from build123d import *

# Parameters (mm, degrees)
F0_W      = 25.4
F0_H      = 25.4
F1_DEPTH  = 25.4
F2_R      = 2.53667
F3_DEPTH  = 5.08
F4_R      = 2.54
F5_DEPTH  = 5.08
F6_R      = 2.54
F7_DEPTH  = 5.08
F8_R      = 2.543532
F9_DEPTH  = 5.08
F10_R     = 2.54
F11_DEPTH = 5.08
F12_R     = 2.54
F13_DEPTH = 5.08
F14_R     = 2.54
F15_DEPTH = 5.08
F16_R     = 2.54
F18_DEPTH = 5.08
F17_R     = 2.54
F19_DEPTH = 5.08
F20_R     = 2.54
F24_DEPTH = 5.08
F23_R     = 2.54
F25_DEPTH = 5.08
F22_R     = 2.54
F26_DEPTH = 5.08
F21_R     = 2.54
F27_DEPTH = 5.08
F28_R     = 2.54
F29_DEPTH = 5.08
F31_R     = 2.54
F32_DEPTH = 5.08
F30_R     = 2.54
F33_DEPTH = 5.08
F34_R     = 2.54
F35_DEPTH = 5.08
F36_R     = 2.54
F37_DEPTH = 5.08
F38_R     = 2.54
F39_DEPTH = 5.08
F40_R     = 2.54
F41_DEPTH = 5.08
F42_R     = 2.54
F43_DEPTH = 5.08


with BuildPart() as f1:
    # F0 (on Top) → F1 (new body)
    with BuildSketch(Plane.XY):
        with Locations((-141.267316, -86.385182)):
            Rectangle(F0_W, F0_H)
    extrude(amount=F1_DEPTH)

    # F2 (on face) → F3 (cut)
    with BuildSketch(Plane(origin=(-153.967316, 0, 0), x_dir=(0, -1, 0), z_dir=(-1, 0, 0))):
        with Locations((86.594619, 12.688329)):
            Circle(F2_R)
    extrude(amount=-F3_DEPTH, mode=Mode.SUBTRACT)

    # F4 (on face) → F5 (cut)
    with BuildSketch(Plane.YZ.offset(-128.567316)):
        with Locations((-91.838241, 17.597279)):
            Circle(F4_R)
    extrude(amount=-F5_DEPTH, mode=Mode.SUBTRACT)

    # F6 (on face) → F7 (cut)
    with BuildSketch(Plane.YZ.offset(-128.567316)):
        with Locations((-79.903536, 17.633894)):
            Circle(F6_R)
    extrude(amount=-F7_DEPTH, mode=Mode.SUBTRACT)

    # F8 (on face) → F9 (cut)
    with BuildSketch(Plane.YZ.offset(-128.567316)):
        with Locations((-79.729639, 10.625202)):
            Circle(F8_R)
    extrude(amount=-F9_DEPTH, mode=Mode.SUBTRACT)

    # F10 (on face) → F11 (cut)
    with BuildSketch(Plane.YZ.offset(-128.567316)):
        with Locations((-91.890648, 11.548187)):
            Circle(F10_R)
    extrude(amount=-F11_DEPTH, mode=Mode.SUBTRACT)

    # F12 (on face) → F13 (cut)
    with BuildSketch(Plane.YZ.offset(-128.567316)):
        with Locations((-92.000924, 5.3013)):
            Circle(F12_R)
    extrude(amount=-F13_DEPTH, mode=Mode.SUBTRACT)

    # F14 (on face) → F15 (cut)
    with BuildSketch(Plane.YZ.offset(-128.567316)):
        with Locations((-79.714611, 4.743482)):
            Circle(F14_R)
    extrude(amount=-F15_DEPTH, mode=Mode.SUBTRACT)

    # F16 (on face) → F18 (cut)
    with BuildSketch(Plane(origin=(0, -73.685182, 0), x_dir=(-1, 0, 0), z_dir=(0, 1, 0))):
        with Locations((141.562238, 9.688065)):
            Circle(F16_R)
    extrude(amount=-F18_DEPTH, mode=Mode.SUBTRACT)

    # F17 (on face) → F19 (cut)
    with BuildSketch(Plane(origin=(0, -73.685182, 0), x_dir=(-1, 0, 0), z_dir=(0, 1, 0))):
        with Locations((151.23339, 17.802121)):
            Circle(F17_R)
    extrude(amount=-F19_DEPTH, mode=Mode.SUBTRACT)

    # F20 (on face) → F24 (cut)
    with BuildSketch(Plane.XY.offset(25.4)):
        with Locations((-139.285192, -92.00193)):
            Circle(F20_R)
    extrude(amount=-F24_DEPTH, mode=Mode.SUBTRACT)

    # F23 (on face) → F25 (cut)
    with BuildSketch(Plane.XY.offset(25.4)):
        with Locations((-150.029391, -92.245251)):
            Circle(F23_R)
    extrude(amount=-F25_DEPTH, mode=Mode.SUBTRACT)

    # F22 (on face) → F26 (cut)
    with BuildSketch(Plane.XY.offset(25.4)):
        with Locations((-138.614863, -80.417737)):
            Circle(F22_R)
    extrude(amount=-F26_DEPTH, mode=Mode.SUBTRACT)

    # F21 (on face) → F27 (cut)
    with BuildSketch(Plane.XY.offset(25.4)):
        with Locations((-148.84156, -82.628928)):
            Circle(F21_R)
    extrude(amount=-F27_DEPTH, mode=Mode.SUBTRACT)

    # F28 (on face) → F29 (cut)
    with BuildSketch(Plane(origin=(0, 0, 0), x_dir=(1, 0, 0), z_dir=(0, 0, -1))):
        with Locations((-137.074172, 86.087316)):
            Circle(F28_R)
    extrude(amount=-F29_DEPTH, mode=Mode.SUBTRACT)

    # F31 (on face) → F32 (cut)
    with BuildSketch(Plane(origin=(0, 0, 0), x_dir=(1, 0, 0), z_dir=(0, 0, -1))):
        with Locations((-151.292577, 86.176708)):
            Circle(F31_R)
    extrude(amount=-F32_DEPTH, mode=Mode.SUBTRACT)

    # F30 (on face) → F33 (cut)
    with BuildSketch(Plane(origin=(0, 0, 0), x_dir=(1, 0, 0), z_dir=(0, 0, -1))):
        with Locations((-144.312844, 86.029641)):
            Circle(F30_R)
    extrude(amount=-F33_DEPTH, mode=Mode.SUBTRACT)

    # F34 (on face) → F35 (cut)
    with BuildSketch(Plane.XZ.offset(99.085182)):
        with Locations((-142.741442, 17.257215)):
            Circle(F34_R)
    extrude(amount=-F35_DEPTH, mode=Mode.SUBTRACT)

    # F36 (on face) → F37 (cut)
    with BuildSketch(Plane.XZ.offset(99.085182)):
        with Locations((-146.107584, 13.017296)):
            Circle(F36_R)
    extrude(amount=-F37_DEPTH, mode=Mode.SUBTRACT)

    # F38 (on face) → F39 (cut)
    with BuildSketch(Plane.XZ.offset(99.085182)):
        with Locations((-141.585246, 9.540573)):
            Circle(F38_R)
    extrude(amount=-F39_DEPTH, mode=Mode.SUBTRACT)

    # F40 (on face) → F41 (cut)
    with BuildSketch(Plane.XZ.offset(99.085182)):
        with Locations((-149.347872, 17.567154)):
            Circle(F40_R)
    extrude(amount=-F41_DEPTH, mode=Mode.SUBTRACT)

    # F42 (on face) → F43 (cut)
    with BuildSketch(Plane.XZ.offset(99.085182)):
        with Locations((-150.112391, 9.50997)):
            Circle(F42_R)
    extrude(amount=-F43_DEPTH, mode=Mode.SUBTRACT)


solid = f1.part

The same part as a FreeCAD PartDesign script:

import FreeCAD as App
import Part
import Sketcher

V = App.Vector
Q = App.Units.Quantity


def add_polygon(sketch, points):
    """Adds a closed chain of lines whose ends are joined by coincident constraints."""
    first, n = sketch.GeometryCount, len(points)
    for a, b in zip(points, points[1:] + points[:1]):
        sketch.addGeometry(Part.LineSegment(App.Vector(*a, 0), App.Vector(*b, 0)), False)
    for i in range(n):
        sketch.addConstraint(Sketcher.Constraint("Coincident", first + i, 2, first + (i + 1) % n, 1))

doc = App.newDocument("Part")
body = doc.addObject("PartDesign::Body", "Body")

sketch1 = body.newObject("Sketcher::SketchObject", "Sketch")
sketch1.AttachmentSupport = (doc.getObject("XY_Plane"), [""])
sketch1.MapMode = "FlatFace"
add_polygon(sketch1, [(-153.967316, -73.685182), (-153.967316, -99.085182), (-128.567316, -99.085182), (-128.567316, -73.685182)])
sketch1.addConstraint([
    Sketcher.Constraint("Vertical", 0),
    Sketcher.Constraint("Horizontal", 1),
    Sketcher.Constraint("Vertical", 2),
    Sketcher.Constraint("Horizontal", 3),
    Sketcher.Constraint("Equal", 3, 0),
    Sketcher.Constraint("DistanceX", 1, 1, 1, 2, Q("1 in")),
    Sketcher.Constraint("DistanceY", 2, 2, -1, 1, 73.685182),
    Sketcher.Constraint("DistanceX", 0, 2, -1, 1, 153.967316),
])
pad1 = body.newObject("PartDesign::Pad", "Pad")
pad1.Profile = sketch1
pad1.Length = Q("1 in")

sketch2 = body.newObject("Sketcher::SketchObject", "Sketch001")
sketch2.AttachmentSupport = (doc.getObject("YZ_Plane"), [""])
sketch2.MapMode = "FlatFace"
sketch2.AttachmentOffset = App.Placement(V(0, 0, -153.967316), App.Rotation())
sketch2.addGeometry(Part.Circle(V(-86.594619, 12.688329, 0), V(0, 0, 1), 2.53667), False)
sketch2.addConstraint([
    Sketcher.Constraint("Diameter", 0, 5.07334),
    Sketcher.Constraint("DistanceX", 0, 3, -1, 1, 86.594619),
    Sketcher.Constraint("DistanceY", -1, 1, 0, 3, 12.688329),
])
pocket1 = body.newObject("PartDesign::Pocket", "Pocket")
pocket1.Profile = sketch2
pocket1.Length = Q("0.2 in")
pocket1.Reversed = True

sketch3 = body.newObject("Sketcher::SketchObject", "Sketch002")
sketch3.AttachmentSupport = (doc.getObject("YZ_Plane"), [""])
sketch3.MapMode = "FlatFace"
sketch3.AttachmentOffset = App.Placement(V(0, 0, -128.567316), App.Rotation())
sketch3.addGeometry(Part.Circle(V(-91.838241, 17.597279, 0), V(0, 0, 1), 2.54), False)
sketch3.addConstraint([
    Sketcher.Constraint("Diameter", 0, Q("0.2 in")),
    Sketcher.Constraint("DistanceX", 0, 3, -1, 1, 91.838241),
    Sketcher.Constraint("DistanceY", -1, 1, 0, 3, 17.597279),
])
pocket2 = body.newObject("PartDesign::Pocket", "Pocket001")
pocket2.Profile = sketch3
pocket2.Length = Q("0.2 in")

sketch4 = body.newObject("Sketcher::SketchObject", "Sketch003")
sketch4.AttachmentSupport = (doc.getObject("YZ_Plane"), [""])
sketch4.MapMode = "FlatFace"
sketch4.AttachmentOffset = App.Placement(V(0, 0, -128.567316), App.Rotation())
sketch4.addGeometry(Part.Circle(V(-79.903536, 17.633894, 0), V(0, 0, 1), 2.54), False)
sketch4.addConstraint([
    Sketcher.Constraint("Diameter", 0, Q("0.2 in")),
    Sketcher.Constraint("DistanceX", 0, 3, -1, 1, 79.903536),
    Sketcher.Constraint("DistanceY", -1, 1, 0, 3, 17.633894),
])
pocket3 = body.newObject("PartDesign::Pocket", "Pocket002")
pocket3.Profile = sketch4
pocket3.Length = Q("0.2 in")

sketch5 = body.newObject("Sketcher::SketchObject", "Sketch004")
sketch5.AttachmentSupport = (doc.getObject("YZ_Plane"), [""])
sketch5.MapMode = "FlatFace"
sketch5.AttachmentOffset = App.Placement(V(0, 0, -128.567316), App.Rotation())
sketch5.addGeometry(Part.Circle(V(-79.729639, 10.625202, 0), V(0, 0, 1), 2.543532), False)
sketch5.addConstraint([
    Sketcher.Constraint("Diameter", 0, 5.087064),
    Sketcher.Constraint("DistanceX", 0, 3, -1, 1, 79.729639),
    Sketcher.Constraint("DistanceY", -1, 1, 0, 3, 10.625202),
])
pocket4 = body.newObject("PartDesign::Pocket", "Pocket003")
pocket4.Profile = sketch5
pocket4.Length = Q("0.2 in")

sketch6 = body.newObject("Sketcher::SketchObject", "Sketch005")
sketch6.AttachmentSupport = (doc.getObject("YZ_Plane"), [""])
sketch6.MapMode = "FlatFace"
sketch6.AttachmentOffset = App.Placement(V(0, 0, -128.567316), App.Rotation())
sketch6.addGeometry(Part.Circle(V(-91.890648, 11.548187, 0), V(0, 0, 1), 2.54), False)
sketch6.addConstraint([
    Sketcher.Constraint("Diameter", 0, Q("0.2 in")),
    Sketcher.Constraint("DistanceX", 0, 3, -1, 1, 91.890648),
    Sketcher.Constraint("DistanceY", -1, 1, 0, 3, 11.548187),
])
pocket5 = body.newObject("PartDesign::Pocket", "Pocket004")
pocket5.Profile = sketch6
pocket5.Length = Q("0.2 in")

sketch7 = body.newObject("Sketcher::SketchObject", "Sketch006")
sketch7.AttachmentSupport = (doc.getObject("YZ_Plane"), [""])
sketch7.MapMode = "FlatFace"
sketch7.AttachmentOffset = App.Placement(V(0, 0, -128.567316), App.Rotation())
sketch7.addGeometry(Part.Circle(V(-92.000924, 5.3013, 0), V(0, 0, 1), 2.54), False)
sketch7.addConstraint([
    Sketcher.Constraint("Diameter", 0, Q("0.2 in")),
    Sketcher.Constraint("DistanceY", -1, 1, 0, 3, 5.3013),
    Sketcher.Constraint("DistanceX", 0, 3, -1, 1, 92.000924),
])
pocket6 = body.newObject("PartDesign::Pocket", "Pocket005")
pocket6.Profile = sketch7
pocket6.Length = Q("0.2 in")

sketch8 = body.newObject("Sketcher::SketchObject", "Sketch007")
sketch8.AttachmentSupport = (doc.getObject("YZ_Plane"), [""])
sketch8.MapMode = "FlatFace"
sketch8.AttachmentOffset = App.Placement(V(0, 0, -128.567316), App.Rotation())
sketch8.addGeometry(Part.Circle(V(-79.714611, 4.743482, 0), V(0, 0, 1), 2.54), False)
sketch8.addConstraint([
    Sketcher.Constraint("Diameter", 0, Q("0.2 in")),
    Sketcher.Constraint("DistanceX", 0, 3, -1, 1, 79.714611),
    Sketcher.Constraint("DistanceY", -1, 1, 0, 3, 4.743482),
])
pocket7 = body.newObject("PartDesign::Pocket", "Pocket006")
pocket7.Profile = sketch8
pocket7.Length = Q("0.2 in")

sketch9 = body.newObject("Sketcher::SketchObject", "Sketch008")
sketch9.AttachmentSupport = (doc.getObject("XZ_Plane"), [""])
sketch9.MapMode = "FlatFace"
sketch9.AttachmentOffset = App.Placement(V(0, 0, 73.685182), App.Rotation())
sketch9.addGeometry(Part.Circle(V(-141.562238, 9.688065, 0), V(0, 0, 1), 2.54), False)
sketch9.addConstraint([
    Sketcher.Constraint("Diameter", 0, Q("0.2 in")),
    Sketcher.Constraint("DistanceX", 0, 3, -1, 1, 141.562238),
    Sketcher.Constraint("DistanceY", -1, 1, 0, 3, 9.688065),
])
pocket8 = body.newObject("PartDesign::Pocket", "Pocket007")
pocket8.Profile = sketch9
pocket8.Length = Q("0.2 in")
pocket8.Reversed = True

sketch10 = body.newObject("Sketcher::SketchObject", "Sketch009")
sketch10.AttachmentSupport = (doc.getObject("XZ_Plane"), [""])
sketch10.MapMode = "FlatFace"
sketch10.AttachmentOffset = App.Placement(V(0, 0, 73.685182), App.Rotation())
sketch10.addGeometry(Part.Circle(V(-151.23339, 17.802121, 0), V(0, 0, 1), 2.54), False)
sketch10.addConstraint([
    Sketcher.Constraint("Diameter", 0, Q("0.2 in")),
    Sketcher.Constraint("DistanceX", 0, 3, -1, 1, 151.23339),
    Sketcher.Constraint("DistanceY", -1, 1, 0, 3, 17.802121),
])
pocket9 = body.newObject("PartDesign::Pocket", "Pocket008")
pocket9.Profile = sketch10
pocket9.Length = Q("0.2 in")
pocket9.Reversed = True

sketch11 = body.newObject("Sketcher::SketchObject", "Sketch010")
sketch11.AttachmentSupport = (doc.getObject("XY_Plane"), [""])
sketch11.MapMode = "FlatFace"
sketch11.AttachmentOffset = App.Placement(V(0, 0, 1 * 25.4), App.Rotation())
sketch11.addGeometry(Part.Circle(V(-139.285192, -92.00193, 0), V(0, 0, 1), 2.54), False)
sketch11.addConstraint([
    Sketcher.Constraint("Diameter", 0, Q("0.2 in")),
    Sketcher.Constraint("DistanceX", 0, 3, -1, 1, 139.285192),
    Sketcher.Constraint("DistanceY", 0, 3, -1, 1, 92.00193),
])
pocket10 = body.newObject("PartDesign::Pocket", "Pocket009")
pocket10.Profile = sketch11
pocket10.Length = Q("0.2 in")

sketch12 = body.newObject("Sketcher::SketchObject", "Sketch011")
sketch12.AttachmentSupport = (doc.getObject("XY_Plane"), [""])
sketch12.MapMode = "FlatFace"
sketch12.AttachmentOffset = App.Placement(V(0, 0, 1 * 25.4), App.Rotation())
sketch12.addGeometry(Part.Circle(V(-150.029391, -92.245251, 0), V(0, 0, 1), 2.54), False)
sketch12.addConstraint([
    Sketcher.Constraint("Diameter", 0, Q("0.2 in")),
    Sketcher.Constraint("DistanceX", 0, 3, -1, 1, 150.029391),
    Sketcher.Constraint("DistanceY", 0, 3, -1, 1, 92.245251),
])
pocket11 = body.newObject("PartDesign::Pocket", "Pocket010")
pocket11.Profile = sketch12
pocket11.Length = Q("0.2 in")

sketch13 = body.newObject("Sketcher::SketchObject", "Sketch012")
sketch13.AttachmentSupport = (doc.getObject("XY_Plane"), [""])
sketch13.MapMode = "FlatFace"
sketch13.AttachmentOffset = App.Placement(V(0, 0, 1 * 25.4), App.Rotation())
sketch13.addGeometry(Part.Circle(V(-138.614863, -80.417737, 0), V(0, 0, 1), 2.54), False)
sketch13.addConstraint([
    Sketcher.Constraint("Diameter", 0, Q("0.2 in")),
    Sketcher.Constraint("DistanceX", 0, 3, -1, 1, 138.614863),
    Sketcher.Constraint("DistanceY", 0, 3, -1, 1, 80.417737),
])
pocket12 = body.newObject("PartDesign::Pocket", "Pocket011")
pocket12.Profile = sketch13
pocket12.Length = Q("0.2 in")

sketch14 = body.newObject("Sketcher::SketchObject", "Sketch013")
sketch14.AttachmentSupport = (doc.getObject("XY_Plane"), [""])
sketch14.MapMode = "FlatFace"
sketch14.AttachmentOffset = App.Placement(V(0, 0, 1 * 25.4), App.Rotation())
sketch14.addGeometry(Part.Circle(V(-148.84156, -82.628928, 0), V(0, 0, 1), 2.54), False)
sketch14.addConstraint([
    Sketcher.Constraint("Diameter", 0, Q("0.2 in")),
    Sketcher.Constraint("DistanceX", 0, 3, -1, 1, 148.84156),
    Sketcher.Constraint("DistanceY", 0, 3, -1, 1, 82.628928),
])
pocket13 = body.newObject("PartDesign::Pocket", "Pocket012")
pocket13.Profile = sketch14
pocket13.Length = Q("0.2 in")

sketch15 = body.newObject("Sketcher::SketchObject", "Sketch014")
sketch15.AttachmentSupport = (doc.getObject("XY_Plane"), [""])
sketch15.MapMode = "FlatFace"
sketch15.addGeometry(Part.Circle(V(-137.074172, -86.087316, 0), V(0, 0, 1), 2.54), False)
sketch15.addConstraint([
    Sketcher.Constraint("Diameter", 0, Q("0.2 in")),
    Sketcher.Constraint("DistanceX", 0, 3, -1, 1, 137.074172),
    Sketcher.Constraint("DistanceY", 0, 3, -1, 1, 86.087316),
])
pocket14 = body.newObject("PartDesign::Pocket", "Pocket013")
pocket14.Profile = sketch15
pocket14.Length = Q("0.2 in")
pocket14.Reversed = True

sketch16 = body.newObject("Sketcher::SketchObject", "Sketch015")
sketch16.AttachmentSupport = (doc.getObject("XY_Plane"), [""])
sketch16.MapMode = "FlatFace"
sketch16.addGeometry(Part.Circle(V(-151.292577, -86.176708, 0), V(0, 0, 1), 2.54), False)
sketch16.addConstraint([
    Sketcher.Constraint("Diameter", 0, Q("0.2 in")),
    Sketcher.Constraint("DistanceY", 0, 3, -1, 1, 86.176708),
    Sketcher.Constraint("DistanceX", 0, 3, -1, 1, 151.292577),
])
pocket15 = body.newObject("PartDesign::Pocket", "Pocket014")
pocket15.Profile = sketch16
pocket15.Length = Q("0.2 in")
pocket15.Reversed = True

sketch17 = body.newObject("Sketcher::SketchObject", "Sketch016")
sketch17.AttachmentSupport = (doc.getObject("XY_Plane"), [""])
sketch17.MapMode = "FlatFace"
sketch17.addGeometry(Part.Circle(V(-144.312844, -86.029641, 0), V(0, 0, 1), 2.54), False)
sketch17.addConstraint([
    Sketcher.Constraint("Diameter", 0, Q("0.2 in")),
    Sketcher.Constraint("DistanceY", 0, 3, -1, 1, 86.029641),
    Sketcher.Constraint("DistanceX", 0, 3, -1, 1, 144.312844),
])
pocket16 = body.newObject("PartDesign::Pocket", "Pocket015")
pocket16.Profile = sketch17
pocket16.Length = Q("0.2 in")
pocket16.Reversed = True

sketch18 = body.newObject("Sketcher::SketchObject", "Sketch017")
sketch18.AttachmentSupport = (doc.getObject("XZ_Plane"), [""])
sketch18.MapMode = "FlatFace"
sketch18.AttachmentOffset = App.Placement(V(0, 0, 99.085182), App.Rotation())
sketch18.addGeometry(Part.Circle(V(-142.741442, 17.257215, 0), V(0, 0, 1), 2.54), False)
sketch18.addConstraint([
    Sketcher.Constraint("Diameter", 0, Q("0.2 in")),
    Sketcher.Constraint("DistanceX", 0, 3, -1, 1, 142.741442),
    Sketcher.Constraint("DistanceY", -1, 1, 0, 3, 17.257215),
])
pocket17 = body.newObject("PartDesign::Pocket", "Pocket016")
pocket17.Profile = sketch18
pocket17.Length = Q("0.2 in")

sketch19 = body.newObject("Sketcher::SketchObject", "Sketch018")
sketch19.AttachmentSupport = (doc.getObject("XZ_Plane"), [""])
sketch19.MapMode = "FlatFace"
sketch19.AttachmentOffset = App.Placement(V(0, 0, 99.085182), App.Rotation())
sketch19.addGeometry(Part.Circle(V(-146.107584, 13.017296, 0), V(0, 0, 1), 2.54), False)
sketch19.addConstraint([
    Sketcher.Constraint("Diameter", 0, Q("0.2 in")),
    Sketcher.Constraint("DistanceX", 0, 3, -1, 1, 146.107584),
    Sketcher.Constraint("DistanceY", -1, 1, 0, 3, 13.017296),
])
pocket18 = body.newObject("PartDesign::Pocket", "Pocket017")
pocket18.Profile = sketch19
pocket18.Length = Q("0.2 in")

sketch20 = body.newObject("Sketcher::SketchObject", "Sketch019")
sketch20.AttachmentSupport = (doc.getObject("XZ_Plane"), [""])
sketch20.MapMode = "FlatFace"
sketch20.AttachmentOffset = App.Placement(V(0, 0, 99.085182), App.Rotation())
sketch20.addGeometry(Part.Circle(V(-141.585246, 9.540573, 0), V(0, 0, 1), 2.54), False)
sketch20.addConstraint([
    Sketcher.Constraint("Diameter", 0, Q("0.2 in")),
    Sketcher.Constraint("DistanceX", 0, 3, -1, 1, 141.585246),
    Sketcher.Constraint("DistanceY", -1, 1, 0, 3, 9.540573),
])
pocket19 = body.newObject("PartDesign::Pocket", "Pocket018")
pocket19.Profile = sketch20
pocket19.Length = Q("0.2 in")

sketch21 = body.newObject("Sketcher::SketchObject", "Sketch020")
sketch21.AttachmentSupport = (doc.getObject("XZ_Plane"), [""])
sketch21.MapMode = "FlatFace"
sketch21.AttachmentOffset = App.Placement(V(0, 0, 99.085182), App.Rotation())
sketch21.addGeometry(Part.Circle(V(-149.347872, 17.567154, 0), V(0, 0, 1), 2.54), False)
sketch21.addConstraint([
    Sketcher.Constraint("Diameter", 0, Q("0.2 in")),
    Sketcher.Constraint("DistanceX", 0, 3, -1, 1, 149.347872),
    Sketcher.Constraint("DistanceY", -1, 1, 0, 3, 17.567154),
])
pocket20 = body.newObject("PartDesign::Pocket", "Pocket019")
pocket20.Profile = sketch21
pocket20.Length = Q("0.2 in")

sketch22 = body.newObject("Sketcher::SketchObject", "Sketch021")
sketch22.AttachmentSupport = (doc.getObject("XZ_Plane"), [""])
sketch22.MapMode = "FlatFace"
sketch22.AttachmentOffset = App.Placement(V(0, 0, 99.085182), App.Rotation())
sketch22.addGeometry(Part.Circle(V(-150.112391, 9.50997, 0), V(0, 0, 1), 2.54), False)
sketch22.addConstraint([
    Sketcher.Constraint("Diameter", 0, Q("0.2 in")),
    Sketcher.Constraint("DistanceX", 0, 3, -1, 1, 150.112391),
    Sketcher.Constraint("DistanceY", -1, 1, 0, 3, 9.50997),
])
pocket21 = body.newObject("PartDesign::Pocket", "Pocket020")
pocket21.Profile = sketch22
pocket21.Length = Q("0.2 in")

doc.recompute()
